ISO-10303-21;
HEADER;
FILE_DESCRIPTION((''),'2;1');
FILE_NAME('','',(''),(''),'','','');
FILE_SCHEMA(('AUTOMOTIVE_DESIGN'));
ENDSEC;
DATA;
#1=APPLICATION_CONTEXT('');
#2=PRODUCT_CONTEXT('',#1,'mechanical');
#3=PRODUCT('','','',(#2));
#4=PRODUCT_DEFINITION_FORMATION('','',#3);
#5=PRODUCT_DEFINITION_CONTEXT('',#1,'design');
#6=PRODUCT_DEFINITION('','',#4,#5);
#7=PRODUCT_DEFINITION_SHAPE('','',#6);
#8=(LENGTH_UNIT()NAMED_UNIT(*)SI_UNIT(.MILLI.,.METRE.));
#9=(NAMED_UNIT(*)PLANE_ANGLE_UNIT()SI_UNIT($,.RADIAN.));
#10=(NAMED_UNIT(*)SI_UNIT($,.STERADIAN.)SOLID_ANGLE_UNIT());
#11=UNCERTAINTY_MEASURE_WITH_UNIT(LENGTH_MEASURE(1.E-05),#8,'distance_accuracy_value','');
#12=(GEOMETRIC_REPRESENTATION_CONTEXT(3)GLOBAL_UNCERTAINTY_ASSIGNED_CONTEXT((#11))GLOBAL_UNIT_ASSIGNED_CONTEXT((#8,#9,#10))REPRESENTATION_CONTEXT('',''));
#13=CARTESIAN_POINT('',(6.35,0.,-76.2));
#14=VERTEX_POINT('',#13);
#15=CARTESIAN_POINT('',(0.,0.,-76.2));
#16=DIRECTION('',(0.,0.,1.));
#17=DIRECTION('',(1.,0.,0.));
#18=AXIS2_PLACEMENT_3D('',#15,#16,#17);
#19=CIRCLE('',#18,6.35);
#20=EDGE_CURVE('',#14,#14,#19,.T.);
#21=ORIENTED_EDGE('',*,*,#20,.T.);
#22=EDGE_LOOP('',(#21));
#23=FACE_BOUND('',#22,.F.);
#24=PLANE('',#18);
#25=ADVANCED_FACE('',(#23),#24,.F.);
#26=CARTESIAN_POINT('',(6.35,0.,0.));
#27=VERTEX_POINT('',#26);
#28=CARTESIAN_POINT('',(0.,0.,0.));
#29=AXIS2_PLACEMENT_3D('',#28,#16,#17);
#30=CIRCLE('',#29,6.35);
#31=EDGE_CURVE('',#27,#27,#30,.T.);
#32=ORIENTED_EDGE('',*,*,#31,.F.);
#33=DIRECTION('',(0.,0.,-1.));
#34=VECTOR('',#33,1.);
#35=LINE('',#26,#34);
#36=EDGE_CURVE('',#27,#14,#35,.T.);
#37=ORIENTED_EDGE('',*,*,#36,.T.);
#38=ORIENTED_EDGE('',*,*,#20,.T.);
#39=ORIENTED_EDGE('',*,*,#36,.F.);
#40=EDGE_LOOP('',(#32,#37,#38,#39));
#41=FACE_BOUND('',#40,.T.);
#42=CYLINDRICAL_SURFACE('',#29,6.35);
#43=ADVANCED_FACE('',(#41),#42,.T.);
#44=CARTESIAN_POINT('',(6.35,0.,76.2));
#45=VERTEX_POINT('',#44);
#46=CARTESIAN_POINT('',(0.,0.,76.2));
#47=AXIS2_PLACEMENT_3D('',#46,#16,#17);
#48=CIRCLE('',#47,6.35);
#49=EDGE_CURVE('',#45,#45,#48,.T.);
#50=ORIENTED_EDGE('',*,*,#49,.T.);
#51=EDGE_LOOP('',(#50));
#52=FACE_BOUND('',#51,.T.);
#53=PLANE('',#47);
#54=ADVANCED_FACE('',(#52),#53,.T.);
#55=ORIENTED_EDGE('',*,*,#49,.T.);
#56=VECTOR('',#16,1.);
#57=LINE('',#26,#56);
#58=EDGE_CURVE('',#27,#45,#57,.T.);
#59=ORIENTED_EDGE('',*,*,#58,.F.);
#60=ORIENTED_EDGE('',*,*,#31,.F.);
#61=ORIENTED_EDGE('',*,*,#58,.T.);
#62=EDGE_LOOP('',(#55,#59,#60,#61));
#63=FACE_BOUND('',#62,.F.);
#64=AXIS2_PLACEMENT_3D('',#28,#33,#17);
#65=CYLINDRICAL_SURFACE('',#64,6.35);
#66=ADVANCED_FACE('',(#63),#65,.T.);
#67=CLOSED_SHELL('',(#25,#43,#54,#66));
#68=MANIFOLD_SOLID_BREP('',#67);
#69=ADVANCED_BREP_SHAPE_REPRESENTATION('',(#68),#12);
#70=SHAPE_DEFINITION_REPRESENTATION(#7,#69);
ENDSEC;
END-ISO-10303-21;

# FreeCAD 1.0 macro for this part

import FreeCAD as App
import Part
import Sketcher
from FreeCAD import Vector
Q = App.Units.Quantity

doc = App.newDocument("Part")
params = doc.addObject("Spreadsheet::Sheet", "Params")
for row, (alias, value) in enumerate([
    ("sketch1_diameter", "0.5 in"),
    ("pad1_length", "6 in"),
], start=1):
    params.set(f"A{row}", alias)
    params.set(f"B{row}", "=" + value)
    params.setAlias(f"B{row}", alias)

body = doc.addObject("PartDesign::Body", "Body")

sketch1 = body.newObject("Sketcher::SketchObject", "Sketch")
sketch1.AttachmentSupport = (doc.getObject("XY_Plane"), [""])
sketch1.MapMode = "FlatFace"
sketch1.addGeometry(Part.Circle(Vector(0, 0, 0), Vector(0, 0, 1), 6), False)
sketch1.addConstraint([
    Sketcher.Constraint("Coincident", 0, 3, -1, 1),
    Sketcher.Constraint("Diameter", 0, Q("0.5 in")),
])
sketch1.setExpression("Constraints[1]", "Params.sketch1_diameter")
pad1 = body.newObject("PartDesign::Pad", "Pad")
pad1.Profile = sketch1
pad1.setExpression("Length", "Params.pad1_length")
pad1.Midplane = True

doc.recompute()
